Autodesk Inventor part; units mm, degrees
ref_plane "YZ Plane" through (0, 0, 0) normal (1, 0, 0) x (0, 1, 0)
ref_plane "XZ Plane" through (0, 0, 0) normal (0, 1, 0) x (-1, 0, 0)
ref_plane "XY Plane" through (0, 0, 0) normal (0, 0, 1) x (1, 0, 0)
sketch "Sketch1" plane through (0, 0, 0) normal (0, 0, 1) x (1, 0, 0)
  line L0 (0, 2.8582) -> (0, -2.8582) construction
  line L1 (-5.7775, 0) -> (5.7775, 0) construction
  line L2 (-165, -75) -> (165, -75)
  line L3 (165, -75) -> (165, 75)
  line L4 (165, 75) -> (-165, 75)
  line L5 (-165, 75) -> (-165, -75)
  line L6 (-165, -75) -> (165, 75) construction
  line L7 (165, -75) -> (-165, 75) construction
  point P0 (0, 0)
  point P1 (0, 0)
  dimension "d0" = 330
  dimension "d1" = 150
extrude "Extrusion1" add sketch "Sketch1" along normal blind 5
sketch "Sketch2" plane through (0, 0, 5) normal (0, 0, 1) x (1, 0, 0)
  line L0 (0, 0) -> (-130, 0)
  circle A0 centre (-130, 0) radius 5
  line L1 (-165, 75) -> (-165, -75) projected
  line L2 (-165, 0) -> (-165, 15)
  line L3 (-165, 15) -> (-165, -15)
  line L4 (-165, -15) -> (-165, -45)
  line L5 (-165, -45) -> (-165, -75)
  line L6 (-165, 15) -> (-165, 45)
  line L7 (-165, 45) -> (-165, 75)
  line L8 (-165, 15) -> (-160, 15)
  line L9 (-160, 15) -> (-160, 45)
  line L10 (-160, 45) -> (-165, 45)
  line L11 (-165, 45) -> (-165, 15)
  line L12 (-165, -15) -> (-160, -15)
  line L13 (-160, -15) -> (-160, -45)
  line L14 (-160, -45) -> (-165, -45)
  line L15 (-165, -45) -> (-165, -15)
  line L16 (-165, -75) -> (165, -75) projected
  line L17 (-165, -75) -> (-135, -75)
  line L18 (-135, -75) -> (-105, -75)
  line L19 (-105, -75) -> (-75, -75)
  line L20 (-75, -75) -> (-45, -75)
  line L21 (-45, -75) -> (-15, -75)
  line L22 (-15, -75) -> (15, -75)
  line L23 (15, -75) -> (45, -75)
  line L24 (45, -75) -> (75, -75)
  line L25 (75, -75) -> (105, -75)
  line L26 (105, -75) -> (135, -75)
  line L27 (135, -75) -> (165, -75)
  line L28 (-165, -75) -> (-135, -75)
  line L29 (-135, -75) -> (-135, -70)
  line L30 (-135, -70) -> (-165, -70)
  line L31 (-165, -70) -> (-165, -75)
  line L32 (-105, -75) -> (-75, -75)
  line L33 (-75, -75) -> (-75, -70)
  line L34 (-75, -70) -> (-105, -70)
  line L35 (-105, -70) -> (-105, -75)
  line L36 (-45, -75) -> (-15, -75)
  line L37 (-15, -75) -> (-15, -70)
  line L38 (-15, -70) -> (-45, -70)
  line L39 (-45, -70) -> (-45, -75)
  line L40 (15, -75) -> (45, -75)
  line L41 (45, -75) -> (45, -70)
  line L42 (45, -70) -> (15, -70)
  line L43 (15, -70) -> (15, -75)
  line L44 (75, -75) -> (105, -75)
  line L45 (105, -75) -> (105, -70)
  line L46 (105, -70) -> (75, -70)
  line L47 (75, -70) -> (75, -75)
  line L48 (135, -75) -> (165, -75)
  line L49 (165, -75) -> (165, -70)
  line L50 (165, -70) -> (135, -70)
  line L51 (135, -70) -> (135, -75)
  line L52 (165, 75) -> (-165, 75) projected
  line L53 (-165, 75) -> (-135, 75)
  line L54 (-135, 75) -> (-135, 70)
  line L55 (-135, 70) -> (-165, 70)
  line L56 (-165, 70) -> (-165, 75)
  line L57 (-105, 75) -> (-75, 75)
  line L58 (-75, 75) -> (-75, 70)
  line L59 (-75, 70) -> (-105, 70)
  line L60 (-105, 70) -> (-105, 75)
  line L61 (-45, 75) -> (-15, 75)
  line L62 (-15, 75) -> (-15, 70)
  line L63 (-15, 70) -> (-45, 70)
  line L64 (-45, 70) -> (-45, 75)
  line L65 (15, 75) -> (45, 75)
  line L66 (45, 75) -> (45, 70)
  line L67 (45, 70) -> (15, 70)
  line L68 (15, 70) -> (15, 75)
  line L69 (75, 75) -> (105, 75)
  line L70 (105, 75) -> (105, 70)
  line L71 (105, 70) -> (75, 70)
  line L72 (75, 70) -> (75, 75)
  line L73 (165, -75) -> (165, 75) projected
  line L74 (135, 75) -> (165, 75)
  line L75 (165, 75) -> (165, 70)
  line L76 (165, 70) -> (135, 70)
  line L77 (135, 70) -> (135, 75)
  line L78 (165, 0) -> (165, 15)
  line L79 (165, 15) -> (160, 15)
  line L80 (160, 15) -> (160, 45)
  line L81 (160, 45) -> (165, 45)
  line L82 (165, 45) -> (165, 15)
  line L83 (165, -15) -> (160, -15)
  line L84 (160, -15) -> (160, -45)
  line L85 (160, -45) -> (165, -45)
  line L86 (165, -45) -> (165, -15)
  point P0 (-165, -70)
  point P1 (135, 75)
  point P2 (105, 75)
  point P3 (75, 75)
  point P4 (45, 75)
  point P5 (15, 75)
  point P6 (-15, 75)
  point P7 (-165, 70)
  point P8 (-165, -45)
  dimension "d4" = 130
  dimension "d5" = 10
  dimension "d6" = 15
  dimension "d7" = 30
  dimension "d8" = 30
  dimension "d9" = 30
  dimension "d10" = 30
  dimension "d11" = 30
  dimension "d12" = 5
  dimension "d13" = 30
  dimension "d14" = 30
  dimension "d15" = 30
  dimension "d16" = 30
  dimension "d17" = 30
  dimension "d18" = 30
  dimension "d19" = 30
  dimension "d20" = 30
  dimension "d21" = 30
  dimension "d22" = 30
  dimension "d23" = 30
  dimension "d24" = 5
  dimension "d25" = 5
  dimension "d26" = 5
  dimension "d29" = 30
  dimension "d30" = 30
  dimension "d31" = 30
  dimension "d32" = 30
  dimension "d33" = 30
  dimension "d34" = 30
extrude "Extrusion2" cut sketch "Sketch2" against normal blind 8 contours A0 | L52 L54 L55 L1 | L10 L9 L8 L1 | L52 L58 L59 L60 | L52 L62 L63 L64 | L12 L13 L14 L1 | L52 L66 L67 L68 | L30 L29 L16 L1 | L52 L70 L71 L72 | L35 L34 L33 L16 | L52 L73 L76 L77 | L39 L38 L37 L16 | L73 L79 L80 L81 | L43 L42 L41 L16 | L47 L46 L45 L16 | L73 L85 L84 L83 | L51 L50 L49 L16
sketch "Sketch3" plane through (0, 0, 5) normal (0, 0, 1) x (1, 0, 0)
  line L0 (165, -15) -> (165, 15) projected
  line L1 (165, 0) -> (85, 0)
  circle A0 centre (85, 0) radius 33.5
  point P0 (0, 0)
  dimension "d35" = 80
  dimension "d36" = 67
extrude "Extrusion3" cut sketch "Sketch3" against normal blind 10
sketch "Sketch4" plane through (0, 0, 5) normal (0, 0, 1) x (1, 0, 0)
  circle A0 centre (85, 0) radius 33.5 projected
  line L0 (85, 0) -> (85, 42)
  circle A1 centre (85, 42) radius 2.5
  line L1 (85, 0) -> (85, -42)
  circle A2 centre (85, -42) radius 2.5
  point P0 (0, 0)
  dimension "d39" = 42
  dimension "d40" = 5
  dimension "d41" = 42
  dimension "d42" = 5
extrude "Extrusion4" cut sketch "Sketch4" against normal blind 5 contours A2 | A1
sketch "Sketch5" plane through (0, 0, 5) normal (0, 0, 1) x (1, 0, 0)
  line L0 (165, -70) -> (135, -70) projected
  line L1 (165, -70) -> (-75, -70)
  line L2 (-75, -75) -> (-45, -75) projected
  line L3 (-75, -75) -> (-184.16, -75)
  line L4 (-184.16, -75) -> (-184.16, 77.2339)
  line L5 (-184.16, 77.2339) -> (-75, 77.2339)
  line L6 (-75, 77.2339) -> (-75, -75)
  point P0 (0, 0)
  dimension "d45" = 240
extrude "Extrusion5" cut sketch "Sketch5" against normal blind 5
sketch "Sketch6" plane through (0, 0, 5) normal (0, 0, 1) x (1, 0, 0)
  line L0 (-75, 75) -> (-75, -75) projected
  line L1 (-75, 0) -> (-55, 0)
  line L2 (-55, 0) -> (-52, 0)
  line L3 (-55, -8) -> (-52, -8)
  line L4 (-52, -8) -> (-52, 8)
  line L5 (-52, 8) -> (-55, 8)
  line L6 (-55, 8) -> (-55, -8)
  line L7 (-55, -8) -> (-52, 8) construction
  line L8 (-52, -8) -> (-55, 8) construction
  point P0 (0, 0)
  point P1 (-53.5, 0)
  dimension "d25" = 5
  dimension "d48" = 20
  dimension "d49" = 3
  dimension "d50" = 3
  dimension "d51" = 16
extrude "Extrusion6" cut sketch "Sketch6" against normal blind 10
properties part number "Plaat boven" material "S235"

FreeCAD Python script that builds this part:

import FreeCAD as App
import Part
import Sketcher
from FreeCAD import Vector


def add_polygon(sketch, points):
    """Adds a closed chain of lines whose ends are joined by coincident constraints."""
    first, n = sketch.GeometryCount, len(points)
    for a, b in zip(points, points[1:] + points[:1]):
        sketch.addGeometry(Part.LineSegment(App.Vector(*a, 0), App.Vector(*b, 0)), False)
    for i in range(n):
        sketch.addConstraint(Sketcher.Constraint("Coincident", first + i, 2, first + (i + 1) % n, 1))

doc = App.newDocument("Part")
body = doc.addObject("PartDesign::Body", "Body")

# Sketch on XY plane
sketch1 = doc.addObject("Sketcher::SketchObject", "Sketch")
body.addObject(sketch1)
sketch1.AttachmentSupport = (doc.XY_Plane, [""])
sketch1.MapMode = "FlatFace"
add_polygon(sketch1, [(-165, 75), (-165, -75), (165, -75), (165, 75)])  # lines 0-3
sketch1.addConstraint(Sketcher.Constraint("Vertical", 0))
sketch1.addConstraint(Sketcher.Constraint("Horizontal", 1))
sketch1.addConstraint(Sketcher.Constraint("Vertical", 2))
sketch1.addConstraint(Sketcher.Constraint("Horizontal", 3))
sketch1.addConstraint(Sketcher.Constraint("Symmetric", 0, 2, 2, 2, -1, 1))
sketch1.addConstraint(Sketcher.Constraint("DistanceX", 1, 1, 1, 2, 330.0))
sketch1.addConstraint(Sketcher.Constraint("DistanceY", 0, 2, 0, 1, 150.0))
pad1 = doc.addObject("PartDesign::Pad", "Pad")
body.addObject(pad1)
pad1.Profile = sketch1
pad1.Length = 5

# Sketch on XY plane
sketch2 = doc.addObject("Sketcher::SketchObject", "Sketch001")
body.addObject(sketch2)
sketch2.AttachmentSupport = (doc.XY_Plane, [""])
sketch2.MapMode = "FlatFace"
sketch2.AttachmentOffset = App.Placement(Vector(0, 0, 5), App.Rotation())
sketch2.addGeometry(Part.Circle(Vector(-130, 0, 0), Vector(0, 0, 1), 5), False)  # 0
add_polygon(sketch2, [(-135, 75), (-165, 75), (-165, 70), (-135, 70)])  # lines 1-4
add_polygon(sketch2, [(-160, 45), (-165, 45), (-165, 15), (-160, 15)])  # lines 5-8
add_polygon(sketch2, [(-75, 75), (-105, 75), (-105, 70), (-75, 70)])  # lines 9-12
add_polygon(sketch2, [(-15, 75), (-45, 75), (-45, 70), (-15, 70)])  # lines 13-16
add_polygon(sketch2, [(-160, -15), (-165, -15), (-165, -45), (-160, -45)])  # lines 17-20
add_polygon(sketch2, [(45, 75), (15, 75), (15, 70), (45, 70)])  # lines 21-24
add_polygon(sketch2, [(-135, -70), (-165, -70), (-165, -75), (-135, -75)])  # lines 25-28
add_polygon(sketch2, [(105, 75), (75, 75), (75, 70), (105, 70)])  # lines 29-32
add_polygon(sketch2, [(-105, -70), (-105, -75), (-75, -75), (-75, -70)])  # lines 33-36
add_polygon(sketch2, [(165, 75), (135, 75), (135, 70), (165, 70)])  # lines 37-40
add_polygon(sketch2, [(-45, -70), (-45, -75), (-15, -75), (-15, -70)])  # lines 41-44
add_polygon(sketch2, [(165, 15), (165, 45), (160, 45), (160, 15)])  # lines 45-48
add_polygon(sketch2, [(15, -70), (15, -75), (45, -75), (45, -70)])  # lines 49-52
add_polygon(sketch2, [(75, -70), (75, -75), (105, -75), (105, -70)])  # lines 53-56
add_polygon(sketch2, [(165, -45), (165, -15), (160, -15), (160, -45)])  # lines 57-60
add_polygon(sketch2, [(135, -70), (135, -75), (165, -75), (165, -70)])  # lines 61-64
sketch2.addConstraint(Sketcher.Constraint("Horizontal", 1))
sketch2.addConstraint(Sketcher.Constraint("Vertical", 2))
sketch2.addConstraint(Sketcher.Constraint("Horizontal", 3))
sketch2.addConstraint(Sketcher.Constraint("Vertical", 4))
sketch2.addConstraint(Sketcher.Constraint("Horizontal", 5))
sketch2.addConstraint(Sketcher.Constraint("Vertical", 6))
sketch2.addConstraint(Sketcher.Constraint("Horizontal", 7))
sketch2.addConstraint(Sketcher.Constraint("Vertical", 8))
sketch2.addConstraint(Sketcher.Constraint("Horizontal", 9))
sketch2.addConstraint(Sketcher.Constraint("Vertical", 10))
sketch2.addConstraint(Sketcher.Constraint("Horizontal", 11))
sketch2.addConstraint(Sketcher.Constraint("Vertical", 12))
sketch2.addConstraint(Sketcher.Constraint("Horizontal", 13))
sketch2.addConstraint(Sketcher.Constraint("Vertical", 14))
sketch2.addConstraint(Sketcher.Constraint("Horizontal", 15))
sketch2.addConstraint(Sketcher.Constraint("Vertical", 16))
sketch2.addConstraint(Sketcher.Constraint("Horizontal", 17))
sketch2.addConstraint(Sketcher.Constraint("Vertical", 18))
sketch2.addConstraint(Sketcher.Constraint("Horizontal", 19))
sketch2.addConstraint(Sketcher.Constraint("Vertical", 20))
sketch2.addConstraint(Sketcher.Constraint("Horizontal", 21))
sketch2.addConstraint(Sketcher.Constraint("Vertical", 22))
sketch2.addConstraint(Sketcher.Constraint("Horizontal", 23))
sketch2.addConstraint(Sketcher.Constraint("Vertical", 24))
sketch2.addConstraint(Sketcher.Constraint("Horizontal", 25))
sketch2.addConstraint(Sketcher.Constraint("Vertical", 26))
sketch2.addConstraint(Sketcher.Constraint("Horizontal", 27))
sketch2.addConstraint(Sketcher.Constraint("Vertical", 28))
sketch2.addConstraint(Sketcher.Constraint("Horizontal", 29))
sketch2.addConstraint(Sketcher.Constraint("Vertical", 30))
sketch2.addConstraint(Sketcher.Constraint("Horizontal", 31))
sketch2.addConstraint(Sketcher.Constraint("Vertical", 32))
sketch2.addConstraint(Sketcher.Constraint("Vertical", 33))
sketch2.addConstraint(Sketcher.Constraint("Horizontal", 34))
sketch2.addConstraint(Sketcher.Constraint("Vertical", 35))
sketch2.addConstraint(Sketcher.Constraint("Horizontal", 36))
sketch2.addConstraint(Sketcher.Constraint("Horizontal", 37))
sketch2.addConstraint(Sketcher.Constraint("Vertical", 38))
sketch2.addConstraint(Sketcher.Constraint("Horizontal", 39))
sketch2.addConstraint(Sketcher.Constraint("Vertical", 40))
sketch2.addConstraint(Sketcher.Constraint("Vertical", 41))
sketch2.addConstraint(Sketcher.Constraint("Horizontal", 42))
sketch2.addConstraint(Sketcher.Constraint("Vertical", 43))
sketch2.addConstraint(Sketcher.Constraint("Horizontal", 44))
sketch2.addConstraint(Sketcher.Constraint("Vertical", 45))
sketch2.addConstraint(Sketcher.Constraint("Horizontal", 46))
sketch2.addConstraint(Sketcher.Constraint("Vertical", 47))
sketch2.addConstraint(Sketcher.Constraint("Horizontal", 48))
sketch2.addConstraint(Sketcher.Constraint("Vertical", 49))
sketch2.addConstraint(Sketcher.Constraint("Horizontal", 50))
sketch2.addConstraint(Sketcher.Constraint("Vertical", 51))
sketch2.addConstraint(Sketcher.Constraint("Horizontal", 52))
sketch2.addConstraint(Sketcher.Constraint("Vertical", 53))
sketch2.addConstraint(Sketcher.Constraint("Horizontal", 54))
sketch2.addConstraint(Sketcher.Constraint("Vertical", 55))
sketch2.addConstraint(Sketcher.Constraint("Horizontal", 56))
sketch2.addConstraint(Sketcher.Constraint("Vertical", 57))
sketch2.addConstraint(Sketcher.Constraint("Horizontal", 58))
sketch2.addConstraint(Sketcher.Constraint("Vertical", 59))
sketch2.addConstraint(Sketcher.Constraint("Horizontal", 60))
sketch2.addConstraint(Sketcher.Constraint("Vertical", 61))
sketch2.addConstraint(Sketcher.Constraint("Horizontal", 62))
sketch2.addConstraint(Sketcher.Constraint("Vertical", 63))
sketch2.addConstraint(Sketcher.Constraint("Horizontal", 64))
sketch2.addConstraint(Sketcher.Constraint("Symmetric", 32, 2, 33, 2, -1, 1))
sketch2.addConstraint(Sketcher.Constraint("Symmetric", 30, 2, 35, 2, -1, 1))
sketch2.addConstraint(Sketcher.Constraint("Symmetric", 27, 2, 37, 2, -1, 1))
sketch2.addConstraint(Sketcher.Constraint("Symmetric", 25, 2, 39, 2, -1, 1))
sketch2.addConstraint(Sketcher.Constraint("Symmetric", 24, 2, 41, 2, -1, 1))
sketch2.addConstraint(Sketcher.Constraint("Symmetric", 22, 2, 43, 2, -1, 1))
sketch2.addConstraint(Sketcher.Constraint("Symmetric", 18, 2, 45, 2, -1, 1))
sketch2.addConstraint(Sketcher.Constraint("Symmetric", 20, 2, 47, 2, -1, 1))
sketch2.addConstraint(Sketcher.Constraint("Symmetric", 16, 2, 49, 2, -1, 1))
sketch2.addConstraint(Sketcher.Constraint("Symmetric", 14, 2, 51, 2, -1, 1))
sketch2.addConstraint(Sketcher.Constraint("Symmetric", 12, 2, 53, 2, -1, 1))
sketch2.addConstraint(Sketcher.Constraint("Symmetric", 10, 2, 55, 2, -1, 1))
sketch2.addConstraint(Sketcher.Constraint("Symmetric", 6, 2, 57, 2, -1, 1))
sketch2.addConstraint(Sketcher.Constraint("Symmetric", 8, 2, 59, 2, -1, 1))
sketch2.addConstraint(Sketcher.Constraint("Symmetric", 4, 2, 61, 2, -1, 1))
sketch2.addConstraint(Sketcher.Constraint("Symmetric", 2, 2, 63, 2, -1, 1))
sketch2.addConstraint(Sketcher.Constraint("Symmetric", 16, 2, 21, 2, -2))
sketch2.addConstraint(Sketcher.Constraint("Symmetric", 14, 2, 23, 2, -2))
sketch2.addConstraint(Sketcher.Constraint("Symmetric", 12, 2, 29, 2, -2))
sketch2.addConstraint(Sketcher.Constraint("Symmetric", 10, 2, 31, 2, -2))
sketch2.addConstraint(Sketcher.Constraint("Symmetric", 4, 2, 37, 2, -2))
sketch2.addConstraint(Sketcher.Constraint("Symmetric", 2, 2, 39, 2, -2))
sketch2.addConstraint(Sketcher.Constraint("Symmetric", 5, 2, 45, 2, -2))
sketch2.addConstraint(Sketcher.Constraint("Symmetric", 7, 2, 47, 2, -2))
sketch2.addConstraint(Sketcher.Constraint("PointOnObject", 0, 3, -1))
sketch2.addConstraint(Sketcher.Constraint("Horizontal", 4, 2, 9, 2))
sketch2.addConstraint(Sketcher.Constraint("Horizontal", 3, 2, 10, 2))
sketch2.addConstraint(Sketcher.Constraint("Horizontal", 12, 2, 13, 2))
sketch2.addConstraint(Sketcher.Constraint("Horizontal", 11, 2, 14, 2))
sketch2.addConstraint(Sketcher.Constraint("Vertical", 2, 2, 5, 2))
sketch2.addConstraint(Sketcher.Constraint("Equal", 3, 9))
sketch2.addConstraint(Sketcher.Constraint("Equal", 11, 13))
sketch2.addConstraint(Sketcher.Constraint("Equal", 60, 2))
sketch2.addConstraint(Sketcher.Constraint("Equal", 64, 6))
sketch2.addConstraint(Sketcher.Constraint("Diameter", 0, 10.0))
sketch2.addConstraint(Sketcher.Constraint("DistanceX", 1, 2, 1, 1, 30.0))
sketch2.addConstraint(Sketcher.Constraint("DistanceX", 5, 2, 5, 1, 5.0))
sketch2.addConstraint(Sketcher.Constraint("DistanceX", 0, 3, -1, 1, 130.0))
sketch2.addConstraint(Sketcher.Constraint("DistanceY", -1, 1, 6, 2, 15.0))
sketch2.addConstraint(Sketcher.Constraint("DistanceX", 15, 2, -1, 1, 15.0))
sketch2.addConstraint(Sketcher.Constraint("DistanceX", 1, 2, -1, 1, 165.0))
sketch2.addConstraint(Sketcher.Constraint("DistanceY", -1, 1, 1, 2, 75.0))
sketch2.addConstraint(Sketcher.Constraint("DistanceX", 9, 2, -1, 1, 105.0))
pocket1 = doc.addObject("PartDesign::Pocket", "Pocket")
body.addObject(pocket1)
pocket1.Profile = sketch2
pocket1.Length = 8

# Sketch on XY plane
sketch3 = doc.addObject("Sketcher::SketchObject", "Sketch002")
body.addObject(sketch3)
sketch3.AttachmentSupport = (doc.XY_Plane, [""])
sketch3.MapMode = "FlatFace"
sketch3.AttachmentOffset = App.Placement(Vector(0, 0, 5), App.Rotation())
sketch3.addGeometry(Part.Circle(Vector(85, 0, 0), Vector(0, 0, 1), 34), False)
sketch3.addConstraint(Sketcher.Constraint("PointOnObject", 0, 3, -1))
sketch3.addConstraint(Sketcher.Constraint("Diameter", 0, 67.0))
sketch3.addConstraint(Sketcher.Constraint("DistanceX", -1, 1, 0, 3, 85.0))
pocket2 = doc.addObject("PartDesign::Pocket", "Pocket001")
body.addObject(pocket2)
pocket2.Profile = sketch3
pocket2.Length = 10

# Sketch on XY plane
sketch4 = doc.addObject("Sketcher::SketchObject", "Sketch003")
body.addObject(sketch4)
sketch4.AttachmentSupport = (doc.XY_Plane, [""])
sketch4.MapMode = "FlatFace"
sketch4.AttachmentOffset = App.Placement(Vector(0, 0, 5), App.Rotation())
sketch4.addGeometry(Part.Circle(Vector(85, -42, 0), Vector(0, 0, 1), 2.5), False)
sketch4.addGeometry(Part.Circle(Vector(85, 42, 0), Vector(0, 0, 1), 2.5), False)
sketch4.addConstraint(Sketcher.Constraint("Equal", 0, 1))
sketch4.addConstraint(Sketcher.Constraint("Symmetric", 0, 3, 1, 3, -1))
sketch4.addConstraint(Sketcher.Constraint("Diameter", 0, 5.0))
sketch4.addConstraint(Sketcher.Constraint("DistanceY", 0, 3, -1, 1, 42.0))
sketch4.addConstraint(Sketcher.Constraint("DistanceX", -1, 1, 0, 3, 85.0))
pocket3 = doc.addObject("PartDesign::Pocket", "Pocket002")
body.addObject(pocket3)
pocket3.Profile = sketch4
pocket3.Length = 5

# Sketch on XY plane
sketch5 = doc.addObject("Sketcher::SketchObject", "Sketch004")
body.addObject(sketch5)
sketch5.AttachmentSupport = (doc.XY_Plane, [""])
sketch5.MapMode = "FlatFace"
sketch5.AttachmentOffset = App.Placement(Vector(0, 0, 5), App.Rotation())
add_polygon(sketch5, [(-184, -75), (-75, -75), (-75, 77), (-184, 77)])  # lines 0-3
sketch5.addConstraint(Sketcher.Constraint("Horizontal", 0))
sketch5.addConstraint(Sketcher.Constraint("Vertical", 1))
sketch5.addConstraint(Sketcher.Constraint("Horizontal", 2))
sketch5.addConstraint(Sketcher.Constraint("Vertical", 3))
sketch5.addConstraint(Sketcher.Constraint("DistanceX", 0, 2, -1, 1, 75.0))
sketch5.addConstraint(Sketcher.Constraint("DistanceY", 0, 2, -1, 1, 75.0))
sketch5.addConstraint(Sketcher.Constraint("DistanceX", 0, 1, 0, 2, 109.16))
sketch5.addConstraint(Sketcher.Constraint("DistanceY", 1, 1, 1, 2, 152.234))
pocket4 = doc.addObject("PartDesign::Pocket", "Pocket003")
body.addObject(pocket4)
pocket4.Profile = sketch5
pocket4.Length = 5

# Sketch on XY plane
sketch6 = doc.addObject("Sketcher::SketchObject", "Sketch005")
body.addObject(sketch6)
sketch6.AttachmentSupport = (doc.XY_Plane, [""])
sketch6.MapMode = "FlatFace"
sketch6.AttachmentOffset = App.Placement(Vector(0, 0, 5), App.Rotation())
add_polygon(sketch6, [(-55, 8), (-55, -8), (-52, -8), (-52, 8)])  # lines 0-3
sketch6.addConstraint(Sketcher.Constraint("Vertical", 0))
sketch6.addConstraint(Sketcher.Constraint("Horizontal", 1))
sketch6.addConstraint(Sketcher.Constraint("Vertical", 2))
sketch6.addConstraint(Sketcher.Constraint("Horizontal", 3))
sketch6.addConstraint(Sketcher.Constraint("DistanceX", 1, 1, 1, 2, 3.0))
sketch6.addConstraint(Sketcher.Constraint("DistanceY", 0, 2, 0, 1, 16.0))
sketch6.addConstraint(Sketcher.Constraint("DistanceX", 0, 2, -1, 1, 55.0))
sketch6.addConstraint(Sketcher.Constraint("DistanceY", 0, 2, -1, 1, 8.0))
pocket5 = doc.addObject("PartDesign::Pocket", "Pocket004")
body.addObject(pocket5)
pocket5.Profile = sketch6
pocket5.Length = 10

doc.recompute()
